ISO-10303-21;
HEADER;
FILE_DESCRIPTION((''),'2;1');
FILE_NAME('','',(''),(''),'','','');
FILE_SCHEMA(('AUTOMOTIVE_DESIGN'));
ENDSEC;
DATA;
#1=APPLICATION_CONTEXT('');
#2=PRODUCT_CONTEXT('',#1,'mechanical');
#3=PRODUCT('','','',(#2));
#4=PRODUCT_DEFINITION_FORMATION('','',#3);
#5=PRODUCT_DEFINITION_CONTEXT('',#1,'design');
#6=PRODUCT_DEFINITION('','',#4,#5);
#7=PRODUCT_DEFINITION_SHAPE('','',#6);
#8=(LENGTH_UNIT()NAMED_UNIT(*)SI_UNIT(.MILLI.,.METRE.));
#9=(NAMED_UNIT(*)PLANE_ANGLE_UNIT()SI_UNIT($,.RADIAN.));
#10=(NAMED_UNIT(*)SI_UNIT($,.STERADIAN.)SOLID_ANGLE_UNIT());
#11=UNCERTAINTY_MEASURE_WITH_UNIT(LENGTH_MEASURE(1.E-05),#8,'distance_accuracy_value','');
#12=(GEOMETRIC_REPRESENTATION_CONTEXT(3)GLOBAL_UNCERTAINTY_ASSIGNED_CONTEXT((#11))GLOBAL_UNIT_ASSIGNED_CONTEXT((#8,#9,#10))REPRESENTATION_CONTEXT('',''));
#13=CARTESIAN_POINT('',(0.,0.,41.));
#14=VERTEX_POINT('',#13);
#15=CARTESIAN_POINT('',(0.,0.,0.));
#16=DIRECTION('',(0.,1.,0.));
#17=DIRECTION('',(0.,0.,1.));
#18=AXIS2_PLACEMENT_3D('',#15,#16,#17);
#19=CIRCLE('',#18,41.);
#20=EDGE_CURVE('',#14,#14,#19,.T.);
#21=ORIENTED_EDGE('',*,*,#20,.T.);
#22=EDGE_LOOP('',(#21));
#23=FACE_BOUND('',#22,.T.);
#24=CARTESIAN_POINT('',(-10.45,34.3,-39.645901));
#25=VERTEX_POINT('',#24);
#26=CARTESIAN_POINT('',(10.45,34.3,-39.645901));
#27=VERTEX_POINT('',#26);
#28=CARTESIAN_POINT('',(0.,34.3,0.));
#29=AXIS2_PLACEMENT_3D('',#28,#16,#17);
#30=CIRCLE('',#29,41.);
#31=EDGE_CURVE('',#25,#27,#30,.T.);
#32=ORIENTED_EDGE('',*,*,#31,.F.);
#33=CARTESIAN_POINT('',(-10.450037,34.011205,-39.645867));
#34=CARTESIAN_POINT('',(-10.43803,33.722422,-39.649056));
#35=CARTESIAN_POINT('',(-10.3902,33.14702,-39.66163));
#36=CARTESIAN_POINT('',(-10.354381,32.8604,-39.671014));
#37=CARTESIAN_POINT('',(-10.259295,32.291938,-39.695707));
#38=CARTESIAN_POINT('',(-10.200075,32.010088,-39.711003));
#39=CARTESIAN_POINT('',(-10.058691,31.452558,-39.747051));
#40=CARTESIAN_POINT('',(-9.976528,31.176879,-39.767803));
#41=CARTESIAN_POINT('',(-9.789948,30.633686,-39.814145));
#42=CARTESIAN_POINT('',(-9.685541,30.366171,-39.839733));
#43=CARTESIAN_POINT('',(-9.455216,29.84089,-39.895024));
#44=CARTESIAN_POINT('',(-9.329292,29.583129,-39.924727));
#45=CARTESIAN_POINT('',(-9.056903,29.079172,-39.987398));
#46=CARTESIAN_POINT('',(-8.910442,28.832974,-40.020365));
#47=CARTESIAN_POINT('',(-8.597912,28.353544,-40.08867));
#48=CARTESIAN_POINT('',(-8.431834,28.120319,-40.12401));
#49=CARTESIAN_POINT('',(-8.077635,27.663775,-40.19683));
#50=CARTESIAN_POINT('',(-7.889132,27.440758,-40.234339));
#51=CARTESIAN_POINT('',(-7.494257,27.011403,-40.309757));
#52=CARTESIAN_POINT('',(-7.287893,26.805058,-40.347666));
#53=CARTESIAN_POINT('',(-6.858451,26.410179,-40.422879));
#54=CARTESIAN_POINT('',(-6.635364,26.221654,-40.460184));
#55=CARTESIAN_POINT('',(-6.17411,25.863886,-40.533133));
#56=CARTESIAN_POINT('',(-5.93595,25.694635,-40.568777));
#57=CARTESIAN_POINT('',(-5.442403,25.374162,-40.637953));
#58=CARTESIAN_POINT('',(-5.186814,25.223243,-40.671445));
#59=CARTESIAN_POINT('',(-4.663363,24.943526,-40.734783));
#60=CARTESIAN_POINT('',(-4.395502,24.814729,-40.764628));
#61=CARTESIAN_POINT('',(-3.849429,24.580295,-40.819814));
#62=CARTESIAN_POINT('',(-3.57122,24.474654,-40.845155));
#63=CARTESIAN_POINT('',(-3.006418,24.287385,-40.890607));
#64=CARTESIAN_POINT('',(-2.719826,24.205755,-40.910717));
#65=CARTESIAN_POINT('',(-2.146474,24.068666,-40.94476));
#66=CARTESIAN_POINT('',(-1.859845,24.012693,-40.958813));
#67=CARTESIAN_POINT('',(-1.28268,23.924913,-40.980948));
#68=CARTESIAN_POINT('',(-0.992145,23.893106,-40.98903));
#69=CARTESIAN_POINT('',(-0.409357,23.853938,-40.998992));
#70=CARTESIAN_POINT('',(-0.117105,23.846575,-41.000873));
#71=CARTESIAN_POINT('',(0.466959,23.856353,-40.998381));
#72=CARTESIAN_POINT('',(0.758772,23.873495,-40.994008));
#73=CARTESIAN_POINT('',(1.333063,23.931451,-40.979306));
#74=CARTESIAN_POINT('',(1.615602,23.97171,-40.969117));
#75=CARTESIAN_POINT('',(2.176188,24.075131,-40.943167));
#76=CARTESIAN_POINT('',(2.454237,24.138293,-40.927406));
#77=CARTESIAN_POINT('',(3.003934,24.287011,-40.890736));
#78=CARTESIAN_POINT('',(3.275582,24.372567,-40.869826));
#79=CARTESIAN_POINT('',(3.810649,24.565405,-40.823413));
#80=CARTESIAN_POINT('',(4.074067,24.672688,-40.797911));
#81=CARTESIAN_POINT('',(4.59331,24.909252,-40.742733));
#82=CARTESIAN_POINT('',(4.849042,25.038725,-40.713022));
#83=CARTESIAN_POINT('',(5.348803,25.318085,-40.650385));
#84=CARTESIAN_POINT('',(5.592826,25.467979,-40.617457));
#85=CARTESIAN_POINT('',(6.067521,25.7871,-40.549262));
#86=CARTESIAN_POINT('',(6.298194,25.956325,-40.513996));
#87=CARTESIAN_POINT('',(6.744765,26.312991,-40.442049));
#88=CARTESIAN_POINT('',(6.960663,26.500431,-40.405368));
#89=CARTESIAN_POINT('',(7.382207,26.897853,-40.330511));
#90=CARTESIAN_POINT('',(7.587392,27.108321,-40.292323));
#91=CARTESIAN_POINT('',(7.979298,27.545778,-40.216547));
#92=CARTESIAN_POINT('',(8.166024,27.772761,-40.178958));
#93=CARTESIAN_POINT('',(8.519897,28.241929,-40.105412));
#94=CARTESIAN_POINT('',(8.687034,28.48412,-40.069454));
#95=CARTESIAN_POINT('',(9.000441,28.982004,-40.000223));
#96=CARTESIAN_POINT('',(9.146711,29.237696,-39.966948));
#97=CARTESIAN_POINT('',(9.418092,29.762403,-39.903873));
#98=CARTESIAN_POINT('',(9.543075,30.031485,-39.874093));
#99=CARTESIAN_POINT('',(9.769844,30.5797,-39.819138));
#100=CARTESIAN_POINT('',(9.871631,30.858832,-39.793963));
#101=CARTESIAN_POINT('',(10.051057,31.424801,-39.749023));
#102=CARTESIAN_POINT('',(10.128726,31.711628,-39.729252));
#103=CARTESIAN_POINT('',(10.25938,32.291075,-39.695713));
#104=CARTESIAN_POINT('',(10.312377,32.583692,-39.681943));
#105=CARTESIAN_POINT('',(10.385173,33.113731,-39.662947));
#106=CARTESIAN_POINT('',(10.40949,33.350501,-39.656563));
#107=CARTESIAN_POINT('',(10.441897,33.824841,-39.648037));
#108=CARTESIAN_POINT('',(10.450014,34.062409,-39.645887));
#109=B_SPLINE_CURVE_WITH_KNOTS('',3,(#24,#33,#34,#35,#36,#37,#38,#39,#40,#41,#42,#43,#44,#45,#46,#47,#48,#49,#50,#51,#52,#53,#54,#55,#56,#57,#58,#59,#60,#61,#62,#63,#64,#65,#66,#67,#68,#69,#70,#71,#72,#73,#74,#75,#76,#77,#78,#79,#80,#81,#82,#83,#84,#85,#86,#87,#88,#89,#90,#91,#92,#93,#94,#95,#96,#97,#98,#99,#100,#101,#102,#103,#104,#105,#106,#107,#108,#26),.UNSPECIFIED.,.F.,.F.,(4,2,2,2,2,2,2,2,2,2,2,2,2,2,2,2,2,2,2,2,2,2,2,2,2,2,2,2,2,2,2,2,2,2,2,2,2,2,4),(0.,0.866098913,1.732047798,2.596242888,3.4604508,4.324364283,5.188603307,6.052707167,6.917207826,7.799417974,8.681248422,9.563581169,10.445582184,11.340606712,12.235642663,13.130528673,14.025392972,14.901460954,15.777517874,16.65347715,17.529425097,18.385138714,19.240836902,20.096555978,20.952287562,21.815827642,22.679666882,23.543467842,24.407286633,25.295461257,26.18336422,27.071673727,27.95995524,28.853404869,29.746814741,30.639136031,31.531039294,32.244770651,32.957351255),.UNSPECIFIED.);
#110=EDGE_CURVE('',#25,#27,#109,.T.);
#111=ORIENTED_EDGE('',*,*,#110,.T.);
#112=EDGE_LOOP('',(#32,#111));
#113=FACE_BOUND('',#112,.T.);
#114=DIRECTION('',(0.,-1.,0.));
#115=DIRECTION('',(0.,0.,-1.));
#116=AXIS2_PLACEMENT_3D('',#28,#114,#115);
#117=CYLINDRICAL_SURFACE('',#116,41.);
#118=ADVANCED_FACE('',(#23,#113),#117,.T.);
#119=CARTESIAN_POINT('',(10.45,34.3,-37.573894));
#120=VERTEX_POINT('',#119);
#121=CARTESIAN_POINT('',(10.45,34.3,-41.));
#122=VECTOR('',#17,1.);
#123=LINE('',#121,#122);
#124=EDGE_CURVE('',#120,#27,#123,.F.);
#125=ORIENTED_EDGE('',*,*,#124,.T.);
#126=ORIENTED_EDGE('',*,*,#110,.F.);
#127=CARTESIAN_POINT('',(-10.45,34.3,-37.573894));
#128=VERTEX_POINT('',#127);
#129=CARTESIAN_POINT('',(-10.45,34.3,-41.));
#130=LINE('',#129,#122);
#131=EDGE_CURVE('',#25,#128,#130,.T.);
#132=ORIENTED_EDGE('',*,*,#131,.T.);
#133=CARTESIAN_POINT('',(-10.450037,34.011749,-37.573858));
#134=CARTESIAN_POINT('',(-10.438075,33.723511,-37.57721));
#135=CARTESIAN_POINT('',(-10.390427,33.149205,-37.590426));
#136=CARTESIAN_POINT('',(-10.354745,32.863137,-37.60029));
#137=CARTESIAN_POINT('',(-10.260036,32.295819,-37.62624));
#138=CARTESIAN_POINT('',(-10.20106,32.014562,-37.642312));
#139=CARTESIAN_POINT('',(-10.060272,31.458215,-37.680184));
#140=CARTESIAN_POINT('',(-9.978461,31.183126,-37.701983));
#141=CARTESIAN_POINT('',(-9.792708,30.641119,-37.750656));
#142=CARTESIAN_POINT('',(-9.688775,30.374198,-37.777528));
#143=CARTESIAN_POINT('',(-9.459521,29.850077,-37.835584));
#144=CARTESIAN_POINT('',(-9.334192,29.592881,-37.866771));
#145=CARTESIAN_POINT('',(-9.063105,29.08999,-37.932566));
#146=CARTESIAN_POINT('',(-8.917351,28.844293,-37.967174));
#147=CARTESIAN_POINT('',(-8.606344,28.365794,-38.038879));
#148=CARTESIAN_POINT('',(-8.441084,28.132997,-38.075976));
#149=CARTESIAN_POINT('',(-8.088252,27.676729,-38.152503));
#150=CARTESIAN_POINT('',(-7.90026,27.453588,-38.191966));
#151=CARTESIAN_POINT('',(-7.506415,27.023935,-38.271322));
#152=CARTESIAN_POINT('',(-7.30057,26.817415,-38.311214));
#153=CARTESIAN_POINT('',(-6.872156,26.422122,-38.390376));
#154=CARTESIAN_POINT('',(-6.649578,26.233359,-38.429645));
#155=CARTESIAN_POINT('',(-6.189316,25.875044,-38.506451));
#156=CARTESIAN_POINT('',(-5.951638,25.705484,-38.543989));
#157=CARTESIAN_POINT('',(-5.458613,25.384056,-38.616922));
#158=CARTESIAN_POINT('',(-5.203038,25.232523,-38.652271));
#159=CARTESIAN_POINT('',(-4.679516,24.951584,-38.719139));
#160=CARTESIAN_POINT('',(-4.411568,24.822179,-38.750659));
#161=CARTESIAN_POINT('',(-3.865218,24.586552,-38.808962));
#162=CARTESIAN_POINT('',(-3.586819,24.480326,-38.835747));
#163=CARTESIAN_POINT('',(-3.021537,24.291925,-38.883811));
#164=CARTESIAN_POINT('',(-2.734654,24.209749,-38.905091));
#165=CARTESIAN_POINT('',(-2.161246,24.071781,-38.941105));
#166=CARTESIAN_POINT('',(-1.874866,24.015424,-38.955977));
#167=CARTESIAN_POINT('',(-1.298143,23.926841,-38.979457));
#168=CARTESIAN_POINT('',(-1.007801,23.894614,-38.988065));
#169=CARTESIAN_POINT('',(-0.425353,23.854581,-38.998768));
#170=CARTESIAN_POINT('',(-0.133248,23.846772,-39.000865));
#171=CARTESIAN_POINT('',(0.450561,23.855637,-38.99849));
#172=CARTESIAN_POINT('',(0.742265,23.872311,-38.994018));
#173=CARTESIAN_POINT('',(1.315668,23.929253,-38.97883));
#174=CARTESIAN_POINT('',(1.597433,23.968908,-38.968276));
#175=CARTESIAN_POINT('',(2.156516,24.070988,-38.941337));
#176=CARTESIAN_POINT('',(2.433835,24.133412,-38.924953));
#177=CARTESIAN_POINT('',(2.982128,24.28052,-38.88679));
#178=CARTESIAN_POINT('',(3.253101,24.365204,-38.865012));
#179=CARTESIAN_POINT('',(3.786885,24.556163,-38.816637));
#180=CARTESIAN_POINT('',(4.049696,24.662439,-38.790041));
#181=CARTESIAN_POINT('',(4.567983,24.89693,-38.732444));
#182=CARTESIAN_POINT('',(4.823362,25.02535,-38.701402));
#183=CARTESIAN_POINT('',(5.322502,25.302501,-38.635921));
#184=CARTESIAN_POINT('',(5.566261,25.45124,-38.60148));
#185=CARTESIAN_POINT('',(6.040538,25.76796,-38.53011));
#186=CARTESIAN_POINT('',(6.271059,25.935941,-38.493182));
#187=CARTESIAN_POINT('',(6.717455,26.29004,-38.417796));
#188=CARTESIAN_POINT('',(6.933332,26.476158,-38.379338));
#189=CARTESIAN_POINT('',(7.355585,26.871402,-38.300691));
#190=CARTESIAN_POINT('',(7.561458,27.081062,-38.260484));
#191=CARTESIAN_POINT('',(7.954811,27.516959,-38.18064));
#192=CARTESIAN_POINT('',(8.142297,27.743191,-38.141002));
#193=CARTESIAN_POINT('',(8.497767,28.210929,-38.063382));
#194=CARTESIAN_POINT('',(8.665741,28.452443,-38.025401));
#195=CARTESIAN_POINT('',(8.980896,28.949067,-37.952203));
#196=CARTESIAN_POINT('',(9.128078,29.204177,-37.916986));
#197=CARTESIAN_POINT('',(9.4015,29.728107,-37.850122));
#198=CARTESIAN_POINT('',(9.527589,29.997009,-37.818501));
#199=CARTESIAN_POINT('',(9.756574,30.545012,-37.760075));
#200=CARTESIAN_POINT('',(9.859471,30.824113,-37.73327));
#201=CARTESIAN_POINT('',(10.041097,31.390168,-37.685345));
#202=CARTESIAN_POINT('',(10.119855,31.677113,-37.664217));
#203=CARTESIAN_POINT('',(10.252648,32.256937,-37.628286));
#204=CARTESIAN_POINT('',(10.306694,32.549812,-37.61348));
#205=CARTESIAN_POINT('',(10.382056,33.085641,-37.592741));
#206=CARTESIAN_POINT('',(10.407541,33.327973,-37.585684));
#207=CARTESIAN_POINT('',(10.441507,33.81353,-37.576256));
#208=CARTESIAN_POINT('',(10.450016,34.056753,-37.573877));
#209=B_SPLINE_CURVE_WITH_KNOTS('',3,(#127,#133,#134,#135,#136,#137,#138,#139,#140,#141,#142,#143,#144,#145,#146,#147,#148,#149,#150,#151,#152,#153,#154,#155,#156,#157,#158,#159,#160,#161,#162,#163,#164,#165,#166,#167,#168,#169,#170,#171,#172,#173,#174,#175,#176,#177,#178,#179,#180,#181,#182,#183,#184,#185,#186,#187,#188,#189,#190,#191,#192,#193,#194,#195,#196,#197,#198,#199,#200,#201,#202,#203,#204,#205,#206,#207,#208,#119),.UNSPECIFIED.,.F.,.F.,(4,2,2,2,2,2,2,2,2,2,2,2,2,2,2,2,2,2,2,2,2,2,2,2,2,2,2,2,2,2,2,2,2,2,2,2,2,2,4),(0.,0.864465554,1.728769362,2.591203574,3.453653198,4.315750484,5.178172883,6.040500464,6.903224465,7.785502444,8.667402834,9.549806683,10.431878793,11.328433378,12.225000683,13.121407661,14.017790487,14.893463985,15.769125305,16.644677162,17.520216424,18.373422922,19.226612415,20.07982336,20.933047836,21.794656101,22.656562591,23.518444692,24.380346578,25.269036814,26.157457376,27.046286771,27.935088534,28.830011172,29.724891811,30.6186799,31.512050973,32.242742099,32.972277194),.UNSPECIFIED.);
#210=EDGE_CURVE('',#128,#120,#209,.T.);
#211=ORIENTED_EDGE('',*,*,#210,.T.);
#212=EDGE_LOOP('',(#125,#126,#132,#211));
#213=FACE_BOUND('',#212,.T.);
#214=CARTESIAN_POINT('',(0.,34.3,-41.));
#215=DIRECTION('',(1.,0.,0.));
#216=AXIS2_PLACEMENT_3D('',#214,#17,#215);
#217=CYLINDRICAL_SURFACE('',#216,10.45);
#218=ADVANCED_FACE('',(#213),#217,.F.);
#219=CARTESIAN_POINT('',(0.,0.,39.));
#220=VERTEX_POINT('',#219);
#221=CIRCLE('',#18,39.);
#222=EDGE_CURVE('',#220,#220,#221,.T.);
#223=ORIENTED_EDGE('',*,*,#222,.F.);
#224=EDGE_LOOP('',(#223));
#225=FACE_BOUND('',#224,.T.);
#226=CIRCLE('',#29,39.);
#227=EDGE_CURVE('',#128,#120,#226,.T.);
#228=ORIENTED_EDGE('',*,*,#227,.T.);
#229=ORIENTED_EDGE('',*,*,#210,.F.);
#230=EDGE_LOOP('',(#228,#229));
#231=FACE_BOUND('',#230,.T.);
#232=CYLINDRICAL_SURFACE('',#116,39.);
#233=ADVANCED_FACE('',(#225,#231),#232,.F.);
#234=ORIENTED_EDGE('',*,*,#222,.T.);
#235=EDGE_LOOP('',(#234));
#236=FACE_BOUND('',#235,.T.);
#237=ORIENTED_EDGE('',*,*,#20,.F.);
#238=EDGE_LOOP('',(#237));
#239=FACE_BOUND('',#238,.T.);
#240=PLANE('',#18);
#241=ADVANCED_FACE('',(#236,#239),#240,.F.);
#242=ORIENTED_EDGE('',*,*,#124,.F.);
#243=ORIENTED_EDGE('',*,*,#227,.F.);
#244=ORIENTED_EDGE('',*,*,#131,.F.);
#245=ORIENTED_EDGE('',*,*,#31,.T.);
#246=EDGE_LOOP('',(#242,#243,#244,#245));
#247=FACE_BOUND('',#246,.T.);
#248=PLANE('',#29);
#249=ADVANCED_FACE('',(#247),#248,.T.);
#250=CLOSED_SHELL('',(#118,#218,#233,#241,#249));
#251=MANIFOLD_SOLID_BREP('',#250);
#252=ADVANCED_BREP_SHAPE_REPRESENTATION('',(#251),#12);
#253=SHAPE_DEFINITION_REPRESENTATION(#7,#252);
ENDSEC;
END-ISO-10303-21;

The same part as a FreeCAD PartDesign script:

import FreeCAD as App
import Part
import Sketcher

V = App.Vector

doc = App.newDocument("Part")
body = doc.addObject("PartDesign::Body", "Body")

sketch1 = doc.addObject("Sketcher::SketchObject", "Sketch")
body.addObject(sketch1)
sketch1.AttachmentSupport = (doc.XZ_Plane, [""])
sketch1.MapMode = "FlatFace"
sketch1.addGeometry([
    Part.Circle(V(0, 0, 0), V(0, 0, 1), 41),
    Part.Circle(V(0, 0, 0), V(0, 0, 1), 39),
], False)
sketch1.addConstraint([
    Sketcher.Constraint("Coincident", 0, 3, -1, 1),
    Sketcher.Constraint("Coincident", 1, 3, -1, 1),
    Sketcher.Constraint("Diameter", 0, 82.0),
    Sketcher.Constraint("Diameter", 1, 78.0),
])
pad1 = doc.addObject("PartDesign::Pad", "Pad")
body.addObject(pad1)
pad1.Profile = sketch1
pad1.Length = 34.3
pad1.Reversed = True

sketch2 = doc.addObject("Sketcher::SketchObject", "Sketch001")
body.addObject(sketch2)
sketch2.AttachmentSupport = (doc.XY_Plane, [""])
sketch2.MapMode = "FlatFace"
sketch2.addGeometry(Part.Circle(V(0, 34.3, 0), V(0, 0, 1), 10.45), False)
sketch2.addConstraint([
    Sketcher.Constraint("PointOnObject", 0, 3, -2),
    Sketcher.Constraint("Diameter", 0, 20.9),
    Sketcher.Constraint("DistanceY", -1, 1, 0, 3, 34.3),
])
pocket1 = doc.addObject("PartDesign::Pocket", "Pocket")
body.addObject(pocket1)
pocket1.Profile = sketch2
pocket1.Type = "ThroughAll"

doc.recompute()
